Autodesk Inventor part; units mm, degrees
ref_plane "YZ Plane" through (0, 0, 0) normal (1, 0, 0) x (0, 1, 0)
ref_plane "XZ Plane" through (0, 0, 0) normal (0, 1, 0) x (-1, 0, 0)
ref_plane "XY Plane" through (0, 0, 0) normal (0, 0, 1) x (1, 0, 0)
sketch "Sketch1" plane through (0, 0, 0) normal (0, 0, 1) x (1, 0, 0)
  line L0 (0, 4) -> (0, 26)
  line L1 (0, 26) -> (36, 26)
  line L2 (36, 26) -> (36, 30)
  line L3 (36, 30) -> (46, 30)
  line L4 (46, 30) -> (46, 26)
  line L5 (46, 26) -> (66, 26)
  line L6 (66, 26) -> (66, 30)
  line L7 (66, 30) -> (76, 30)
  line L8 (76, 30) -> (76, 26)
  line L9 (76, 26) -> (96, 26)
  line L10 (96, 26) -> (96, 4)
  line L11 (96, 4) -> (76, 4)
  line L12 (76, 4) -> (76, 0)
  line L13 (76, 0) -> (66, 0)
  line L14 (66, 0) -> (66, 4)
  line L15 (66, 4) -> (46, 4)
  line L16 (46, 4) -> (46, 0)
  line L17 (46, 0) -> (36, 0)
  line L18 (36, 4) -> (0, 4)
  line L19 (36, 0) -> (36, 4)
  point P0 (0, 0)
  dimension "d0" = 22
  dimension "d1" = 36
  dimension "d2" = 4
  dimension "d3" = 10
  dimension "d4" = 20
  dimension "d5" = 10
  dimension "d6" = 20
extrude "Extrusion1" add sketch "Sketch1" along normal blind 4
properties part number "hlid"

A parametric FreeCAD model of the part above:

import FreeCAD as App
import Part
import Sketcher

V = App.Vector
Q = App.Units.Quantity

doc = App.newDocument("Part")
body = doc.addObject("PartDesign::Body", "Body")

sketch1 = body.newObject("Sketcher::SketchObject", "Sketch")
sketch1.AttachmentSupport = (doc.getObject("XY_Plane"), [""])
sketch1.MapMode = "FlatFace"
sketch1.addGeometry([
    Part.LineSegment(V(0, 26, 0), V(0, 4, 0)),
    Part.LineSegment(V(0, 4, 0), V(36, 4, 0)),
    Part.LineSegment(V(36, 4, 0), V(36, 0, 0)),
    Part.LineSegment(V(36, 0, 0), V(46, 0, 0)),
    Part.LineSegment(V(46, 0, 0), V(46, 4, 0)),
    Part.LineSegment(V(46, 4, 0), V(66, 4, 0)),
    Part.LineSegment(V(66, 4, 0), V(66, 0, 0)),
    Part.LineSegment(V(66, 0, 0), V(76, 0, 0)),
    Part.LineSegment(V(76, 0, 0), V(76, 4, 0)),
    Part.LineSegment(V(76, 4, 0), V(96, 4, 0)),
    Part.LineSegment(V(96, 4, 0), V(96, 26, 0)),
    Part.LineSegment(V(96, 26, 0), V(76, 26, 0)),
    Part.LineSegment(V(76, 26, 0), V(76, 30, 0)),
    Part.LineSegment(V(76, 30, 0), V(66, 30, 0)),
    Part.LineSegment(V(66, 30, 0), V(66, 26, 0)),
    Part.LineSegment(V(66, 26, 0), V(46, 26, 0)),
    Part.LineSegment(V(46, 26, 0), V(46, 30, 0)),
    Part.LineSegment(V(46, 30, 0), V(36, 30, 0)),
    Part.LineSegment(V(36, 30, 0), V(36, 26, 0)),
    Part.LineSegment(V(36, 26, 0), V(0, 26, 0)),
], False)
sketch1.addConstraint([
    Sketcher.Constraint("Coincident", 0, 2, 1, 1),
    Sketcher.Constraint("Coincident", 1, 2, 2, 1),
    Sketcher.Constraint("Coincident", 2, 2, 3, 1),
    Sketcher.Constraint("Coincident", 3, 2, 4, 1),
    Sketcher.Constraint("Coincident", 4, 2, 5, 1),
    Sketcher.Constraint("Coincident", 5, 2, 6, 1),
    Sketcher.Constraint("Coincident", 6, 2, 7, 1),
    Sketcher.Constraint("Coincident", 7, 2, 8, 1),
    Sketcher.Constraint("Coincident", 8, 2, 9, 1),
    Sketcher.Constraint("Coincident", 9, 2, 10, 1),
    Sketcher.Constraint("Coincident", 10, 2, 11, 1),
    Sketcher.Constraint("Coincident", 11, 2, 12, 1),
    Sketcher.Constraint("Coincident", 12, 2, 13, 1),
    Sketcher.Constraint("Coincident", 13, 2, 14, 1),
    Sketcher.Constraint("Coincident", 14, 2, 15, 1),
    Sketcher.Constraint("Coincident", 15, 2, 16, 1),
    Sketcher.Constraint("Coincident", 16, 2, 17, 1),
    Sketcher.Constraint("Coincident", 17, 2, 18, 1),
    Sketcher.Constraint("Coincident", 18, 2, 19, 1),
    Sketcher.Constraint("Coincident", 19, 2, 0, 1),
    Sketcher.Constraint("Vertical", 0),
    Sketcher.Constraint("Horizontal", 1),
    Sketcher.Constraint("Vertical", 2),
    Sketcher.Constraint("Horizontal", 3),
    Sketcher.Constraint("Vertical", 4),
    Sketcher.Constraint("Horizontal", 5),
    Sketcher.Constraint("Vertical", 6),
    Sketcher.Constraint("Horizontal", 7),
    Sketcher.Constraint("Vertical", 8),
    Sketcher.Constraint("Horizontal", 9),
    Sketcher.Constraint("Vertical", 10),
    Sketcher.Constraint("Horizontal", 11),
    Sketcher.Constraint("Vertical", 12),
    Sketcher.Constraint("Horizontal", 13),
    Sketcher.Constraint("Vertical", 14),
    Sketcher.Constraint("Horizontal", 15),
    Sketcher.Constraint("Vertical", 16),
    Sketcher.Constraint("Horizontal", 17),
    Sketcher.Constraint("Vertical", 18),
    Sketcher.Constraint("Horizontal", 19),
    Sketcher.Constraint("PointOnObject", 0, 2, -2),
    Sketcher.Constraint("PointOnObject", 2, 2, -1),
    Sketcher.Constraint("PointOnObject", 6, 2, -1),
    Sketcher.Constraint("Horizontal", 1, 2, 4, 2),
    Sketcher.Constraint("Horizontal", 5, 2, 8, 2),
    Sketcher.Constraint("Horizontal", 11, 2, 14, 2),
    Sketcher.Constraint("Horizontal", 13, 2, 16, 2),
    Sketcher.Constraint("Horizontal", 15, 2, 18, 2),
    Sketcher.Constraint("Vertical", 8, 2, 11, 2),
    Sketcher.Constraint("Vertical", 6, 2, 13, 2),
    Sketcher.Constraint("Vertical", 4, 2, 15, 2),
    Sketcher.Constraint("Vertical", 2, 2, 17, 2),
    Sketcher.Constraint("Equal", 3, 7),
    Sketcher.Constraint("Equal", 5, 9),
    Sketcher.Constraint("Equal", 8, 12),
    Sketcher.Constraint("DistanceX", 1, 1, 1, 2, Q("36 mm")),
    Sketcher.Constraint("DistanceX", 3, 1, 3, 2, Q("10 mm")),
    Sketcher.Constraint("DistanceX", 5, 1, 5, 2, Q("20 mm")),
    Sketcher.Constraint("DistanceY", 0, 2, 0, 1, Q("22 mm")),
    Sketcher.Constraint("DistanceY", 2, 2, 2, 1, Q("4 mm")),
])
pad1 = body.newObject("PartDesign::Pad", "Pad")
pad1.Profile = sketch1
pad1.Length = 4

doc.recompute()
